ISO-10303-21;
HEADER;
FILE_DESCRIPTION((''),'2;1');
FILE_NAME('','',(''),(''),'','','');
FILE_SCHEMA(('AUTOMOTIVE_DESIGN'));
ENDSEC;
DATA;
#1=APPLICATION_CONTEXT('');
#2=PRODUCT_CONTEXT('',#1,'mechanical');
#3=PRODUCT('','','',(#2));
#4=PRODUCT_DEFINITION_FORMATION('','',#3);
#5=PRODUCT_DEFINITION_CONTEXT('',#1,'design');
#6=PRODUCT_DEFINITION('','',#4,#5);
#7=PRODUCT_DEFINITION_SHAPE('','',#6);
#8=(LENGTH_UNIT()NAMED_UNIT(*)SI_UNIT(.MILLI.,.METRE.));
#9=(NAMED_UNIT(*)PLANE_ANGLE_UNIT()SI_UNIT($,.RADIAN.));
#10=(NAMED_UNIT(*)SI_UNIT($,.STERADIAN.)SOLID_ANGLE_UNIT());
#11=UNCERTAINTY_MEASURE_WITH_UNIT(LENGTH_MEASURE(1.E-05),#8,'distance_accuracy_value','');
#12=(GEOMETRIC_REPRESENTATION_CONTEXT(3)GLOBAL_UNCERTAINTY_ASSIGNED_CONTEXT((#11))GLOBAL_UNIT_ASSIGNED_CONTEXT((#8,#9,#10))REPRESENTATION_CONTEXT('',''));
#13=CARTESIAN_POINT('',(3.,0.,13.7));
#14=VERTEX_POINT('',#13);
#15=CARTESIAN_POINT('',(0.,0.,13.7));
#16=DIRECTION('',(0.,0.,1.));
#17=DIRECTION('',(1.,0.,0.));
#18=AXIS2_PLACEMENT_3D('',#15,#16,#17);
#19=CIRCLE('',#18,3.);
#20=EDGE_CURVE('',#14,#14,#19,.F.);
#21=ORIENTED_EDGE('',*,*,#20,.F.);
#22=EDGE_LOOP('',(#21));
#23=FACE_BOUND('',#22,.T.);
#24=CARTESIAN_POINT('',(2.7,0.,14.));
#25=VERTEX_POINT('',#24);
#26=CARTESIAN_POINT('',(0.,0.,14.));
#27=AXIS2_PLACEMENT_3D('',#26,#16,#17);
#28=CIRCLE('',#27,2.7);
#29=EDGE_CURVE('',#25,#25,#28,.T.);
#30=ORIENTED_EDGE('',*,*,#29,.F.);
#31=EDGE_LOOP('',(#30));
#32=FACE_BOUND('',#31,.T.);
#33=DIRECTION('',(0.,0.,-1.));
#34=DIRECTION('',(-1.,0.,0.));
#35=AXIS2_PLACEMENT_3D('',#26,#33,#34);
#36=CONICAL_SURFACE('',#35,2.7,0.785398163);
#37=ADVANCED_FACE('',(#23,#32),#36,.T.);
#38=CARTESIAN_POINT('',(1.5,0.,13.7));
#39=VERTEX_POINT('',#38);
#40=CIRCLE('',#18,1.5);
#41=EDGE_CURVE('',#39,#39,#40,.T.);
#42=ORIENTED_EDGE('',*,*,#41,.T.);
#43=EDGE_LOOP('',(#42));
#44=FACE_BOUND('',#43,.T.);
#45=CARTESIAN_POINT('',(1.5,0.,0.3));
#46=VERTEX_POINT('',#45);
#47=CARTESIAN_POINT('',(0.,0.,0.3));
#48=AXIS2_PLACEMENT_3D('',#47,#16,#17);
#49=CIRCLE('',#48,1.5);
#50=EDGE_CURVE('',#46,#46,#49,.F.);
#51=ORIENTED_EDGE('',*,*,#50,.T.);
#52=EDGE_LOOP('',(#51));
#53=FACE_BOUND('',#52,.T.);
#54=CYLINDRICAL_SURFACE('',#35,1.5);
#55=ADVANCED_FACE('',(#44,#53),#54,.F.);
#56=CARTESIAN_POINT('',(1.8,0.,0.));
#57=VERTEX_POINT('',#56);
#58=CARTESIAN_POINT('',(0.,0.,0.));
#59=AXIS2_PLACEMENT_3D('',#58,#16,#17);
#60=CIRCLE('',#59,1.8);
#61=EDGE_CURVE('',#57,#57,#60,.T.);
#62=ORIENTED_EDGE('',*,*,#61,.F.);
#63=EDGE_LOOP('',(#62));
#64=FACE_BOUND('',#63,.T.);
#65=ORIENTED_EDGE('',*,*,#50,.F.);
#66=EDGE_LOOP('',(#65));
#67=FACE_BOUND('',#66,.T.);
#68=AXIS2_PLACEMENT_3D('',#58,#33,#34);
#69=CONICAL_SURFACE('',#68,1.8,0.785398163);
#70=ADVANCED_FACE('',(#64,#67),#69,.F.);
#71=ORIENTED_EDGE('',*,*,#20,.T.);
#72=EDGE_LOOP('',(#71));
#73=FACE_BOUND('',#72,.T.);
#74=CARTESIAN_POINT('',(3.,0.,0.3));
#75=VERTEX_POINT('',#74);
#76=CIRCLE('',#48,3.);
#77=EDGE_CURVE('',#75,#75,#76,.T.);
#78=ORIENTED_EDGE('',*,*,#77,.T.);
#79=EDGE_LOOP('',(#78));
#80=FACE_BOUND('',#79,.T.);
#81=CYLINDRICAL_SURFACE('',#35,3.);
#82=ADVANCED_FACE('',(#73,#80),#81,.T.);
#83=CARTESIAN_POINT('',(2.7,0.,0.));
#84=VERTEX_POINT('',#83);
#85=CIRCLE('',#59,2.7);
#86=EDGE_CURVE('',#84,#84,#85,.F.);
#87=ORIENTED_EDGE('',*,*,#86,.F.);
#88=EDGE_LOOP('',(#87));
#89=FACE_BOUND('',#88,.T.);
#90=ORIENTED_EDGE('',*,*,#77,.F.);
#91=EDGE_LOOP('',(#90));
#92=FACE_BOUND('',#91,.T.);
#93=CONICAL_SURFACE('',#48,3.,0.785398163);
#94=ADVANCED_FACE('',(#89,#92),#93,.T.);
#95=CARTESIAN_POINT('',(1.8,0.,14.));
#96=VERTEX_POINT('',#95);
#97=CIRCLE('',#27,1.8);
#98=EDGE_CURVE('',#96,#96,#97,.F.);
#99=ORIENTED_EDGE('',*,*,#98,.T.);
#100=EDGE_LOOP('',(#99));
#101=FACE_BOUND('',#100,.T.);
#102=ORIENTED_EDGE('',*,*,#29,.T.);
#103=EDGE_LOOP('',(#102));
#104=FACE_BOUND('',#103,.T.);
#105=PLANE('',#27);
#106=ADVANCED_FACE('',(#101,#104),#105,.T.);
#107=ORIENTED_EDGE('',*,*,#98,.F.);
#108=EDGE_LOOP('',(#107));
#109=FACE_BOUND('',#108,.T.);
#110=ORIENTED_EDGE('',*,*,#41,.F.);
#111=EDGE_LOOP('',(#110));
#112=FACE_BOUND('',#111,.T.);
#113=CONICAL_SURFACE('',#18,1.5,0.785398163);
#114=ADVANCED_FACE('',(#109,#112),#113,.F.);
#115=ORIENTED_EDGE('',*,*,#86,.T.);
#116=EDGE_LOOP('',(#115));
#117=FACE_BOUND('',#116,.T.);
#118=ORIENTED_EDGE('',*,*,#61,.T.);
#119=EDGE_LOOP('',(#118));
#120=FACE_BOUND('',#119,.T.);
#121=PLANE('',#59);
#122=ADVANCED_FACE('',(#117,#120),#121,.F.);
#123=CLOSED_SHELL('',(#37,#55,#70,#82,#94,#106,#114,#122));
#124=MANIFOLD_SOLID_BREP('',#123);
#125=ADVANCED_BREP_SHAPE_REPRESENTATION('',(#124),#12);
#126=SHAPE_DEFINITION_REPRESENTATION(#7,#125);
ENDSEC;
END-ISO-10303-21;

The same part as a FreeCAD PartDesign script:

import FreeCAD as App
import Part
import Sketcher


def edges_at(feature, points):
    """Names of the edges that pass closest to the given points."""
    edges = feature.Shape.Edges
    near = lambda p: min(range(len(edges)), key=lambda i: edges[i].distToShape(Part.Vertex(*p))[0])
    return sorted({f"Edge{near(p) + 1}" for p in points})

doc = App.newDocument("Part")
body = doc.addObject("PartDesign::Body", "Body")

sketch1 = doc.addObject("Sketcher::SketchObject", "Sketch")
body.addObject(sketch1)
sketch1.AttachmentSupport = (doc.XY_Plane, [""])
sketch1.MapMode = "FlatFace"
sketch1.addGeometry(Part.Circle(App.Vector(0, 0, 0), App.Vector(0, 0, 1), 3), False)
sketch1.addGeometry(Part.Circle(App.Vector(0, 0, 0), App.Vector(0, 0, 1), 1.5), False)
sketch1.addConstraint(Sketcher.Constraint("Coincident", 0, 3, -1, 1))
sketch1.addConstraint(Sketcher.Constraint("Coincident", 1, 3, -1, 1))
sketch1.addConstraint(Sketcher.Constraint("Diameter", 0, 6.0))
sketch1.addConstraint(Sketcher.Constraint("Diameter", 1, 3.0))
pad1 = doc.addObject("PartDesign::Pad", "Pad")
body.addObject(pad1)
pad1.Profile = sketch1
pad1.Length = 14
doc.recompute()

chamfer = doc.addObject("PartDesign::Chamfer", "Chamfer")
body.addObject(chamfer)
chamfer.Base = (pad1, edges_at(pad1, [
    (-3, 0, 0),
    (-3, 0, 14),
    (-1.5, 0, 0),
    (-1.5, 0, 14),
]))
chamfer.Size = 0.3

doc.recompute()
